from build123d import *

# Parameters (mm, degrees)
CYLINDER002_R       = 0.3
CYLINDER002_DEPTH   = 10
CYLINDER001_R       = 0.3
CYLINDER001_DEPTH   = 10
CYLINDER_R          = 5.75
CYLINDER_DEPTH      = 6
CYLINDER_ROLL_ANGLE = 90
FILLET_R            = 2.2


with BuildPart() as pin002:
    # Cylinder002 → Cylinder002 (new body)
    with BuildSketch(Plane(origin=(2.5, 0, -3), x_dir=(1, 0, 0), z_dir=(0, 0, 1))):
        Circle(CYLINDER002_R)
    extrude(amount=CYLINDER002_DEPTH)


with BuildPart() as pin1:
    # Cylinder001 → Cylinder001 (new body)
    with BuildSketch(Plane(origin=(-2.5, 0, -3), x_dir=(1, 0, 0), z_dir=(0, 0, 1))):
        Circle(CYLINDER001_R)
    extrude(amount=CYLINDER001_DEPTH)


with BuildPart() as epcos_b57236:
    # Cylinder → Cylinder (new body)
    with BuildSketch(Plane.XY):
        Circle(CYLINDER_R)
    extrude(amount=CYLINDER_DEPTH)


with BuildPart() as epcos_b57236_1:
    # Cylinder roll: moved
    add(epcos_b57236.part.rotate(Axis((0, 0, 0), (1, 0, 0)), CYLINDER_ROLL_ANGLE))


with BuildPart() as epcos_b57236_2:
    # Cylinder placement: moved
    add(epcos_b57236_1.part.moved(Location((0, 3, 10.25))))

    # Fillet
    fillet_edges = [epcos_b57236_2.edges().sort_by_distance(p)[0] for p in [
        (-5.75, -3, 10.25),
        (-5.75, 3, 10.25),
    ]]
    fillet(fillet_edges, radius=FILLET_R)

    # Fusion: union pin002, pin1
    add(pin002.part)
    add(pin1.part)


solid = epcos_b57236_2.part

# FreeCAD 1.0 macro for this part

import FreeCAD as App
import Part
import Sketcher

V = App.Vector


def edges_at(feature, points):
    """Names of the edges that pass closest to the given points."""
    edges = feature.Shape.Edges
    near = lambda p: min(range(len(edges)), key=lambda i: edges[i].distToShape(Part.Vertex(*p))[0])
    return sorted({f"Edge{near(p) + 1}" for p in points})

doc = App.newDocument("Part")
params = doc.addObject("Spreadsheet::Sheet", "Params")
for row, (alias, value) in enumerate([
    ("sketch1_diameter", "0.6 mm"),
    ("pad1_length", "10 mm"),
    ("sketch2_diameter", "0.6 mm"),
    ("pad2_length", "10 mm"),
    ("sketch3_diameter", "11.5 mm"),
    ("pad3_length", "6 mm"),
    ("fillet_radius", "2.2 mm"),
], start=1):
    params.set(f"A{row}", alias)
    params.set(f"B{row}", "=" + value)
    params.setAlias(f"B{row}", alias)

body = doc.addObject("PartDesign::Body", "Body")

# Sketch on XY plane
sketch1 = body.newObject("Sketcher::SketchObject", "Sketch")
sketch1.AttachmentSupport = (doc.getObject("XY_Plane"), [""])
sketch1.MapMode = "FlatFace"
sketch1.AttachmentOffset = App.Placement(V(0, 0, -3), App.Rotation())
sketch1.addGeometry(Part.Circle(V(2.5, 0, 0), V(0, 0, 1), 0.3), False)
sketch1.addConstraint([
    Sketcher.Constraint("PointOnObject", 0, 3, -1),
    Sketcher.Constraint("Diameter", 0, 0.6),
    Sketcher.Constraint("DistanceX", -1, 1, 0, 3, 2.5),
])
sketch1.setExpression("Constraints[1]", "Params.sketch1_diameter")
pad1 = body.newObject("PartDesign::Pad", "Pad")
pad1.Profile = sketch1
pad1.setExpression("Length", "Params.pad1_length")
body2 = doc.addObject("PartDesign::Body", "Body001")

# Sketch on XY plane
sketch2 = body2.newObject("Sketcher::SketchObject", "Sketch001")
sketch2.AttachmentSupport = (doc.getObject("XY_Plane001"), [""])
sketch2.MapMode = "FlatFace"
sketch2.AttachmentOffset = App.Placement(V(0, 0, -3), App.Rotation())
sketch2.addGeometry(Part.Circle(V(-2.5, 0, 0), V(0, 0, 1), 0.3), False)
sketch2.addConstraint([
    Sketcher.Constraint("PointOnObject", 0, 3, -1),
    Sketcher.Constraint("Diameter", 0, 0.6),
    Sketcher.Constraint("DistanceX", 0, 3, -1, 1, 2.5),
])
sketch2.setExpression("Constraints[1]", "Params.sketch2_diameter")
pad2 = body2.newObject("PartDesign::Pad", "Pad001")
pad2.Profile = sketch2
pad2.setExpression("Length", "Params.pad2_length")
body3 = doc.addObject("PartDesign::Body", "Body002")

# Sketch on XY plane
sketch3 = body3.newObject("Sketcher::SketchObject", "Sketch002")
sketch3.AttachmentSupport = (doc.getObject("XY_Plane002"), [""])
sketch3.MapMode = "FlatFace"
sketch3.addGeometry(Part.Circle(V(0, 0, 0), V(0, 0, 1), 6), False)
sketch3.addConstraint([
    Sketcher.Constraint("Coincident", 0, 3, -1, 1),
    Sketcher.Constraint("Diameter", 0, 11.5),
])
sketch3.setExpression("Constraints[1]", "Params.sketch3_diameter")
pad3 = body3.newObject("PartDesign::Pad", "Pad002")
pad3.Profile = sketch3
pad3.setExpression("Length", "Params.pad3_length")
body4 = doc.addObject("PartDesign::Body", "Body003")
doc.recompute()

body3.Placement = App.Placement(V(0, 0, 0), App.Rotation(V(1, 0, 0), 90))
boolean = body4.newObject("PartDesign::Boolean", "Boolean")
boolean.Type = "Fuse"
boolean.addObjects([body3])
body5 = doc.addObject("PartDesign::Body", "Body004")
doc.recompute()

body4.Placement = App.Placement(V(0, 3, 10.25), App.Rotation(V(0, 0, 1), 0))
boolean2 = body5.newObject("PartDesign::Boolean", "Boolean001")
boolean2.Type = "Fuse"
boolean2.addObjects([body4])
doc.recompute()

fillet = body5.newObject("PartDesign::Fillet", "Fillet")
fillet.Base = (boolean2, edges_at(boolean2, [(-5.75, -3, 10.25), (-5.75, 3, 10.25)]))
fillet.setExpression("Radius", "Params.fillet_radius")
doc.recompute()

boolean3 = body5.newObject("PartDesign::Boolean", "Boolean002")
boolean3.Type = "Fuse"
boolean3.addObjects([body])
doc.recompute()

boolean4 = body5.newObject("PartDesign::Boolean", "Boolean003")
boolean4.Type = "Fuse"
boolean4.addObjects([body2])

doc.recompute()
